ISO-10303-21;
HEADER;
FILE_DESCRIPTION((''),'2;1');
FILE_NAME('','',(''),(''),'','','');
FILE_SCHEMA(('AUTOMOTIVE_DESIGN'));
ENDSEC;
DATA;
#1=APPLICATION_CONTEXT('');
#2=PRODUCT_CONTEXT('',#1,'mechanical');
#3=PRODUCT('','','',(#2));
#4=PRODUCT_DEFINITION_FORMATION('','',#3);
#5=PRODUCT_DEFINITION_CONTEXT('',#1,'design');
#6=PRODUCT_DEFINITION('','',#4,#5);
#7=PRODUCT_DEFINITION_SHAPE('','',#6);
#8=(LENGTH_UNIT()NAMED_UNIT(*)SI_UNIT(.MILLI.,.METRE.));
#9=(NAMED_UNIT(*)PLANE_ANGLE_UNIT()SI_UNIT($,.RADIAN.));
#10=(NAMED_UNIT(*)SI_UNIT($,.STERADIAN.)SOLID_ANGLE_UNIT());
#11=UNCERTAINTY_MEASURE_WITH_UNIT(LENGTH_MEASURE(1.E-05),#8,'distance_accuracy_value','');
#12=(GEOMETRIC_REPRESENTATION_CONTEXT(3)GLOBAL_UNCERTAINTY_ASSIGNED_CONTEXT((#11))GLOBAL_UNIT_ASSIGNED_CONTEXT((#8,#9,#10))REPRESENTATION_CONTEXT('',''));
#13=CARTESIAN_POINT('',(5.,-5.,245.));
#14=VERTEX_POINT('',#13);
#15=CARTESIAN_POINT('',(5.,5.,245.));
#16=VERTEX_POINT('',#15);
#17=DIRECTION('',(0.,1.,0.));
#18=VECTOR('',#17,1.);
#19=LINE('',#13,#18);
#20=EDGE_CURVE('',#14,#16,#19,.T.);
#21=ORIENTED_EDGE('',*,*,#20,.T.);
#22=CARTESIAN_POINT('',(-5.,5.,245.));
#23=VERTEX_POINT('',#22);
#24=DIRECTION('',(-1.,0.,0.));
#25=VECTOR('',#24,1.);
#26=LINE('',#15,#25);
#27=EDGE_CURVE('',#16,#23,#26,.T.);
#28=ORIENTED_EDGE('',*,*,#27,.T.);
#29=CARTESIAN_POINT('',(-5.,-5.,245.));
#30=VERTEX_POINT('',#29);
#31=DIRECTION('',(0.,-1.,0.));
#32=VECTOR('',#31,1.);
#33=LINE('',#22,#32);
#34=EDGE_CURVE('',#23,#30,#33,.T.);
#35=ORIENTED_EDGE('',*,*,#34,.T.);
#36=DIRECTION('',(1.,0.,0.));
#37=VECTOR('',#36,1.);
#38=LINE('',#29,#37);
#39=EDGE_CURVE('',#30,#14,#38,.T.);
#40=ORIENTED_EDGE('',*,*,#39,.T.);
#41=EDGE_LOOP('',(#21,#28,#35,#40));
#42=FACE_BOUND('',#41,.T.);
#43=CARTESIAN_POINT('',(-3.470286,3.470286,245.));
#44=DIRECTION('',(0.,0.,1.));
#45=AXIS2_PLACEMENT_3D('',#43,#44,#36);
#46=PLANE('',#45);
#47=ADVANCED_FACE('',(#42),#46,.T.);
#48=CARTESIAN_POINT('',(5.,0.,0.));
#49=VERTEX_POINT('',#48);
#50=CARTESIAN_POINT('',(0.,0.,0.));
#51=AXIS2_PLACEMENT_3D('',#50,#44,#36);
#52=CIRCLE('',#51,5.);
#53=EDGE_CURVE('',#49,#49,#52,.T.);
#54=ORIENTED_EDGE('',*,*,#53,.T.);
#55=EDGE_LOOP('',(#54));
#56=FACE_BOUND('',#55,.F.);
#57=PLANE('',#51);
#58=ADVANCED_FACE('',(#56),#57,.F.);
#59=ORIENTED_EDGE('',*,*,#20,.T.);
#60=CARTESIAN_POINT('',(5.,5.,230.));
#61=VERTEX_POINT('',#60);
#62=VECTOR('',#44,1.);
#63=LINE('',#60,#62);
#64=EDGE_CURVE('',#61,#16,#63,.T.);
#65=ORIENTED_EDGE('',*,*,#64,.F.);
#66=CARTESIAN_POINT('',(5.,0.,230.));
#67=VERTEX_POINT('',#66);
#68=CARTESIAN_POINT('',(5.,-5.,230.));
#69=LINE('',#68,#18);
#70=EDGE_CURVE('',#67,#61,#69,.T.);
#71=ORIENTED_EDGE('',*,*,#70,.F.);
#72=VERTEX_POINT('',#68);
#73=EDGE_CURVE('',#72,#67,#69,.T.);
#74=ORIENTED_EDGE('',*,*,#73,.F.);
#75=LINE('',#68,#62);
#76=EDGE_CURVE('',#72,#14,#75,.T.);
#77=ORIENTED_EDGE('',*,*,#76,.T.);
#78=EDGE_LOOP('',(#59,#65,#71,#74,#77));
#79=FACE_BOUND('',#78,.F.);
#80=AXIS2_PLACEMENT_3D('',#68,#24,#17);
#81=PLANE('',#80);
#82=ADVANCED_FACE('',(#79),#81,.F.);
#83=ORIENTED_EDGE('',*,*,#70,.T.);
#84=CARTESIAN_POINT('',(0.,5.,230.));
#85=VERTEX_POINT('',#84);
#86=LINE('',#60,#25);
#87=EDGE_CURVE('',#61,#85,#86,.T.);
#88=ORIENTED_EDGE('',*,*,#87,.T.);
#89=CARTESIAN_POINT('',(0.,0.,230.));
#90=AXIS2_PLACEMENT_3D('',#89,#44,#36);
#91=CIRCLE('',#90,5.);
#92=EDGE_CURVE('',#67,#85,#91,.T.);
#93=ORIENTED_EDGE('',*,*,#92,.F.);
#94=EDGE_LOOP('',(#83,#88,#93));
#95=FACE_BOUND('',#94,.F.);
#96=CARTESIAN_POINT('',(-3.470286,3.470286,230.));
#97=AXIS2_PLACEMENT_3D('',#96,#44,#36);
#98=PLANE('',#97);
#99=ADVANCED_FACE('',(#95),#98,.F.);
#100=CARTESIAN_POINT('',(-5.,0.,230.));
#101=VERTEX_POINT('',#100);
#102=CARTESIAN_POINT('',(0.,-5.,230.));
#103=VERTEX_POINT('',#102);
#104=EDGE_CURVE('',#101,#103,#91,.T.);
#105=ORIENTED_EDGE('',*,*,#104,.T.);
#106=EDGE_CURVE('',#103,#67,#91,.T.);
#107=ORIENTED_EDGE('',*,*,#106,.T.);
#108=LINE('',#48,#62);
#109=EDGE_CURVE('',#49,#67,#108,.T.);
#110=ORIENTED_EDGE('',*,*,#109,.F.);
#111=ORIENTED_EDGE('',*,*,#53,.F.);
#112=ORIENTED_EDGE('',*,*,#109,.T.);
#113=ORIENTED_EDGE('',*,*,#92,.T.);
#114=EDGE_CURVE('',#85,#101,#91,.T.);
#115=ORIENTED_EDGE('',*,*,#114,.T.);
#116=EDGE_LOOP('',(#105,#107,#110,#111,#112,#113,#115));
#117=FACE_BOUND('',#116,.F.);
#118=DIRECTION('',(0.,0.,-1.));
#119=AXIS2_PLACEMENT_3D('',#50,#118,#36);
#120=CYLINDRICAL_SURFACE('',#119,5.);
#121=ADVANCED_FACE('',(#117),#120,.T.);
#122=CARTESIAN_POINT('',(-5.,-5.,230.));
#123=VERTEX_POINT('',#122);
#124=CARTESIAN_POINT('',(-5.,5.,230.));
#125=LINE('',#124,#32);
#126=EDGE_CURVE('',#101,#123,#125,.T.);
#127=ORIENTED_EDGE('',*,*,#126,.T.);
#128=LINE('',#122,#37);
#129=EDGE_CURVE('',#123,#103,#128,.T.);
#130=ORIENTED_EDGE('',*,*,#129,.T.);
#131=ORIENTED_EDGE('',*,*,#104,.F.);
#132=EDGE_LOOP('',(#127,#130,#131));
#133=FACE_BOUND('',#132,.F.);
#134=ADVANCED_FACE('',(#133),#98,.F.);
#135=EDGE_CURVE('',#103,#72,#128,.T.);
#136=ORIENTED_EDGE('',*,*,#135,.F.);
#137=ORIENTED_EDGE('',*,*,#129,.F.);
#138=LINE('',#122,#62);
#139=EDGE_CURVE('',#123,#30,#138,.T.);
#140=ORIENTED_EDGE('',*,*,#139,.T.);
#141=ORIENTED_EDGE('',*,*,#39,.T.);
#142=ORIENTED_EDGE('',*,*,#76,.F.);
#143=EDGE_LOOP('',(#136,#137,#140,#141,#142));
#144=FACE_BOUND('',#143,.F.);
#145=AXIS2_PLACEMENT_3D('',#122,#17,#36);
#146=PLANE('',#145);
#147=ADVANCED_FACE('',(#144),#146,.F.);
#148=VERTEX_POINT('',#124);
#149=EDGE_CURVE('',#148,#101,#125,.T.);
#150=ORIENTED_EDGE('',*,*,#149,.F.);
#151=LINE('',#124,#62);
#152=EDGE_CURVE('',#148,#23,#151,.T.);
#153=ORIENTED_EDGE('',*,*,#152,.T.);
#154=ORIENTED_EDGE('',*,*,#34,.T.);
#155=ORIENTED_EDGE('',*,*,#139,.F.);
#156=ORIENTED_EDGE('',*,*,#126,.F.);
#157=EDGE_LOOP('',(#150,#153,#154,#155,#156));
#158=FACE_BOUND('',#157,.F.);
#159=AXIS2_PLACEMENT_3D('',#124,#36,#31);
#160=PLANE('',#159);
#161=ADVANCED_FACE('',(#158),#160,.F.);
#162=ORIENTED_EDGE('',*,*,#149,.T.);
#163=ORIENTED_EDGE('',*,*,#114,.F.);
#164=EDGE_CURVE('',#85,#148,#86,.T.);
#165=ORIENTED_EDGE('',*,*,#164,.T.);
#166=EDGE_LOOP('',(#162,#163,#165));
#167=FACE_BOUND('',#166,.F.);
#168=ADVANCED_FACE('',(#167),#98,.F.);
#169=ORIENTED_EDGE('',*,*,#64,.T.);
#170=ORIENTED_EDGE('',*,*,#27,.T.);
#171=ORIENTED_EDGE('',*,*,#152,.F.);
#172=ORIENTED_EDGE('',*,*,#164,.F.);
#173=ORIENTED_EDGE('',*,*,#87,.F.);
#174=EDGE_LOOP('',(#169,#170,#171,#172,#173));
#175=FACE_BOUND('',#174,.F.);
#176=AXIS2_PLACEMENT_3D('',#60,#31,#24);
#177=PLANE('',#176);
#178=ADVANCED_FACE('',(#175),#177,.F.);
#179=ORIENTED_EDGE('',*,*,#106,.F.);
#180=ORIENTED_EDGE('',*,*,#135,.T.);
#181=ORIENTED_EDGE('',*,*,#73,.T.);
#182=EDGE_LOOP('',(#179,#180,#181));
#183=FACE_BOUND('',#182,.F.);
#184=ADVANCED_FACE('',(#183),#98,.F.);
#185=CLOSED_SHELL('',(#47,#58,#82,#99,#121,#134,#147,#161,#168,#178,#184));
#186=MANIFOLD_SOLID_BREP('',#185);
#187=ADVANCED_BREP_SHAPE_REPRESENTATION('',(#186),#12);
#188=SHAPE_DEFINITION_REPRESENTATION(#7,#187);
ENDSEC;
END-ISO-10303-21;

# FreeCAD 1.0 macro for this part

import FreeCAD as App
import Part
import Sketcher
from FreeCAD import Vector
Q = App.Units.Quantity

doc = App.newDocument("Part")
body = doc.addObject("PartDesign::Body", "Body")

sketch1 = doc.addObject("Sketcher::SketchObject", "Sketch")
body.addObject(sketch1)
sketch1.AttachmentSupport = (doc.XY_Plane, [""])
sketch1.MapMode = "FlatFace"
sketch1.addGeometry(Part.Circle(Vector(0, 0, 0), Vector(0, 0, 1), 5), False)
sketch1.addConstraint([
    Sketcher.Constraint("Coincident", 0, 3, -1, 1),
    Sketcher.Constraint("Diameter", 0, Q("10 mm")),
])
pad1 = doc.addObject("PartDesign::Pad", "Pad")
body.addObject(pad1)
pad1.Profile = sketch1
pad1.Length = 230

sketch2 = doc.addObject("Sketcher::SketchObject", "Sketch001")
body.addObject(sketch2)
sketch2.AttachmentSupport = (doc.XY_Plane, [""])
sketch2.MapMode = "FlatFace"
sketch2.AttachmentOffset = App.Placement(Vector(0, 0, 230), App.Rotation())
sketch2.addGeometry([
    Part.LineSegment(Vector(-5, 5, 0), Vector(-5, -5, 0)),
    Part.LineSegment(Vector(-5, -5, 0), Vector(5, -5, 0)),
    Part.LineSegment(Vector(5, -5, 0), Vector(5, 5, 0)),
    Part.LineSegment(Vector(5, 5, 0), Vector(-5, 5, 0)),
], False)
sketch2.addConstraint([
    Sketcher.Constraint("Coincident", 0, 2, 1, 1),
    Sketcher.Constraint("Coincident", 1, 2, 2, 1),
    Sketcher.Constraint("Coincident", 2, 2, 3, 1),
    Sketcher.Constraint("Coincident", 3, 2, 0, 1),
    Sketcher.Constraint("Vertical", 0),
    Sketcher.Constraint("Horizontal", 1),
    Sketcher.Constraint("Vertical", 2),
    Sketcher.Constraint("Horizontal", 3),
    Sketcher.Constraint("Symmetric", 0, 2, 2, 2, -1, 1),
    Sketcher.Constraint("Equal", 3, 0),
    Sketcher.Constraint("DistanceX", 1, 1, 1, 2, Q("10 mm")),
])
pad2 = doc.addObject("PartDesign::Pad", "Pad001")
body.addObject(pad2)
pad2.Profile = sketch2
pad2.Length = 15

doc.recompute()
